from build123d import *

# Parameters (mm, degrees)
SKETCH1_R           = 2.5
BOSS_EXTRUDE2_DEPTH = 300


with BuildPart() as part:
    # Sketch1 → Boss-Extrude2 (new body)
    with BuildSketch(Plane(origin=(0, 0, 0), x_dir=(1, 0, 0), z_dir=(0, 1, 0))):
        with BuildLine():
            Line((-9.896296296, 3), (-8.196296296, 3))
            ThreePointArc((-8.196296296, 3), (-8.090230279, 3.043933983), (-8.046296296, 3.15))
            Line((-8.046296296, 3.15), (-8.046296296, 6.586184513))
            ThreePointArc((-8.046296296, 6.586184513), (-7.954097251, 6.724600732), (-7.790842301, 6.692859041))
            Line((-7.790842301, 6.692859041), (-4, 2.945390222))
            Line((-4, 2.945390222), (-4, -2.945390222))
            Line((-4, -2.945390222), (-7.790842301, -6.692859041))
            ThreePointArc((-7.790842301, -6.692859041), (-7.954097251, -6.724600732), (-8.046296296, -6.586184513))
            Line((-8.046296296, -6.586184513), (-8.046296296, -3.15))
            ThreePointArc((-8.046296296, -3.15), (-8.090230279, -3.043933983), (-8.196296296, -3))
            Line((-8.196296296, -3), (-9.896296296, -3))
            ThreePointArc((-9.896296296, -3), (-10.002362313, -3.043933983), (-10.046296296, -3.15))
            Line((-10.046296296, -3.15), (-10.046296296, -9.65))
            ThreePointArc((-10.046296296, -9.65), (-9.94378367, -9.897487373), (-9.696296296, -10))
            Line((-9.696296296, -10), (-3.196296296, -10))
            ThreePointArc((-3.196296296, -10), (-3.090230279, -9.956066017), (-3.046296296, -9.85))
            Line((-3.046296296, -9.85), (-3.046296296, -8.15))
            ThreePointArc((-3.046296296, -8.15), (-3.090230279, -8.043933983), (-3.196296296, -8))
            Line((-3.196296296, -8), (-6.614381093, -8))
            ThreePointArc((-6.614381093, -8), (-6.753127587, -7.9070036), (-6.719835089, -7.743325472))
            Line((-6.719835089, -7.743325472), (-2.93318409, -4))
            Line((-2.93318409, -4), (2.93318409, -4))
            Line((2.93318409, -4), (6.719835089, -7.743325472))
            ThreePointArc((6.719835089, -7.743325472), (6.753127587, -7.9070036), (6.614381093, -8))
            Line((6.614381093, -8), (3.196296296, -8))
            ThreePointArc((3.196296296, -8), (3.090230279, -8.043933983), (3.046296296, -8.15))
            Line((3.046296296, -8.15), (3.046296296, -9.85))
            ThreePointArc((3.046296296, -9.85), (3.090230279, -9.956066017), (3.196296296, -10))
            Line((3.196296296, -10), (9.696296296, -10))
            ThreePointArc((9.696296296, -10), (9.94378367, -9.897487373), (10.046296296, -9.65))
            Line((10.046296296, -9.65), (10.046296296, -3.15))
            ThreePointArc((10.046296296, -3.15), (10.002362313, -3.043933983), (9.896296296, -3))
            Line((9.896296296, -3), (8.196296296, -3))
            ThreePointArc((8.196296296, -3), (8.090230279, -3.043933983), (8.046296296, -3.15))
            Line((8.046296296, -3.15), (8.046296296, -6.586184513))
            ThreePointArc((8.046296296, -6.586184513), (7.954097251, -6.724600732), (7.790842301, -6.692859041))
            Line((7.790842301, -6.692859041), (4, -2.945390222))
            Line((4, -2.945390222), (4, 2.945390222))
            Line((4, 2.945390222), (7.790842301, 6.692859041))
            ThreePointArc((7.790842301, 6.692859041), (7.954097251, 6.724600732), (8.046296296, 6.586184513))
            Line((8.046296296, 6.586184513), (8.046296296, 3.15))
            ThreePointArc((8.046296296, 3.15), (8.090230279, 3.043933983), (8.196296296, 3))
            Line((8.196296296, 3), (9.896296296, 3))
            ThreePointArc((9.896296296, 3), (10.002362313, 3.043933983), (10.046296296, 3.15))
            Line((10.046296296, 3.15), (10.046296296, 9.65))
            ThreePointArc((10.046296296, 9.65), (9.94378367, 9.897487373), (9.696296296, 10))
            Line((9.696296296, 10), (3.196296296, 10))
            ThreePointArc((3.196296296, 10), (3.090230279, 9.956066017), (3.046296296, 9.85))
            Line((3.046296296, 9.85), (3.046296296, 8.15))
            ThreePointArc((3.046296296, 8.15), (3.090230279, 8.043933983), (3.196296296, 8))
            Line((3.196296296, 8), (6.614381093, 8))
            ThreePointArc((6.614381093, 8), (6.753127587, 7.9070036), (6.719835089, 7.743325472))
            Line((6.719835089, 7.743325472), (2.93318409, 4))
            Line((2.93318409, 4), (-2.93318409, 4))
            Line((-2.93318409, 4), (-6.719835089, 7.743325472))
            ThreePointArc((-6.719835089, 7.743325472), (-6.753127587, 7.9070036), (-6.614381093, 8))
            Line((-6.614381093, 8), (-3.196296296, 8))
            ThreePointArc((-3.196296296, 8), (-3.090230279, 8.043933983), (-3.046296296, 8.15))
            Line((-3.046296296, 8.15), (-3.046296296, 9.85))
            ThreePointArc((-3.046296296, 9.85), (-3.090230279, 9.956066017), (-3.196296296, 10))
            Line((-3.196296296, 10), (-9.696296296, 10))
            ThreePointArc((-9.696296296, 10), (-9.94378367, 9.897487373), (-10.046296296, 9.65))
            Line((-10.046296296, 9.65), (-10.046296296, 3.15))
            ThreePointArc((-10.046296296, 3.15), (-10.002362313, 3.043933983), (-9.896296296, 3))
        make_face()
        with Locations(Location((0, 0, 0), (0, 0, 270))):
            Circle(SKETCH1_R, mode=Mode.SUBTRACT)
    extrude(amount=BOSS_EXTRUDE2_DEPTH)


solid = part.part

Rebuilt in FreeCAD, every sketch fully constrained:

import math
import FreeCAD as App
import Part
import Sketcher

V = App.Vector

doc = App.newDocument("Part")
params = doc.addObject("Spreadsheet::Sheet", "Params")
for row, (alias, value) in enumerate([
    ("sketch1_diameter", "5 mm"),
    ("sketch1_radius", "0.15 mm"),
    ("sketch1_radius2", "0.35 mm"),
    ("sketch1_width", "1.7 mm"),
    ("sketch1_width2", "6.5 mm"),
    ("pad1_length", "300 mm"),
], start=1):
    params.set(f"A{row}", alias)
    params.set(f"B{row}", "=" + value)
    params.setAlias(f"B{row}", alias)

body = doc.addObject("PartDesign::Body", "Body")

sketch1 = doc.addObject("Sketcher::SketchObject", "Sketch")
body.addObject(sketch1)
sketch1.AttachmentSupport = (doc.XZ_Plane, [""])
sketch1.MapMode = "FlatFace"
sketch1.addGeometry([
    Part.LineSegment(V(-9.9, -3, 0), V(-8.2, -3, 0)),
    Part.ArcOfCircle(Part.Circle(V(-8.2, -3.15, 0), V(0, 0, 1), 0.15), math.radians(0), math.radians(90)),
    Part.LineSegment(V(-8.05, -3.15, 0), V(-8.05, -6.59, 0)),
    Part.ArcOfCircle(Part.Circle(V(-7.9, -6.59, 0), V(0, 0, 1), 0.15), math.radians(180), math.radians(315)),
    Part.LineSegment(V(-7.79, -6.69, 0), V(-4, -2.95, 0)),
    Part.LineSegment(V(-4, -2.95, 0), V(-4, 2.95, 0)),
    Part.LineSegment(V(-4, 2.95, 0), V(-7.79, 6.69, 0)),
    Part.ArcOfCircle(Part.Circle(V(-7.9, 6.59, 0), V(0, 0, 1), 0.15), math.radians(45), math.radians(180)),
    Part.LineSegment(V(-8.05, 6.59, 0), V(-8.05, 3.15, 0)),
    Part.ArcOfCircle(Part.Circle(V(-8.2, 3.15, 0), V(0, 0, 1), 0.15), math.radians(-90), math.radians(0)),
    Part.LineSegment(V(-8.2, 3, 0), V(-9.9, 3, 0)),
    Part.ArcOfCircle(Part.Circle(V(-9.9, 3.15, 0), V(0, 0, 1), 0.15), math.radians(-180), math.radians(-90)),
    Part.LineSegment(V(-10.05, 3.15, 0), V(-10.05, 9.65, 0)),
    Part.ArcOfCircle(Part.Circle(V(-9.7, 9.65, 0), V(0, 0, 1), 0.35), math.radians(90), math.radians(180)),
    Part.LineSegment(V(-9.7, 10, 0), V(-3.2, 10, 0)),
    Part.ArcOfCircle(Part.Circle(V(-3.2, 9.85, 0), V(0, 0, 1), 0.15), math.radians(0), math.radians(90)),
    Part.LineSegment(V(-3.05, 9.85, 0), V(-3.05, 8.15, 0)),
    Part.ArcOfCircle(Part.Circle(V(-3.2, 8.15, 0), V(0, 0, 1), 0.15), math.radians(-90), math.radians(0)),
    Part.LineSegment(V(-3.2, 8, 0), V(-6.61, 8, 0)),
    Part.ArcOfCircle(Part.Circle(V(-6.61, 7.85, 0), V(0, 0, 1), 0.15), math.radians(90), math.radians(225)),
    Part.LineSegment(V(-6.72, 7.74, 0), V(-2.93, 4, 0)),
    Part.LineSegment(V(-2.93, 4, 0), V(2.93, 4, 0)),
    Part.LineSegment(V(2.93, 4, 0), V(6.72, 7.74, 0)),
    Part.ArcOfCircle(Part.Circle(V(6.61, 7.85, 0), V(0, 0, 1), 0.15), math.radians(-45), math.radians(90)),
    Part.LineSegment(V(6.61, 8, 0), V(3.2, 8, 0)),
    Part.ArcOfCircle(Part.Circle(V(3.2, 8.15, 0), V(0, 0, 1), 0.15), math.radians(-180), math.radians(-90)),
    Part.LineSegment(V(3.05, 8.15, 0), V(3.05, 9.85, 0)),
    Part.ArcOfCircle(Part.Circle(V(3.2, 9.85, 0), V(0, 0, 1), 0.15), math.radians(90), math.radians(180)),
    Part.LineSegment(V(3.2, 10, 0), V(9.7, 10, 0)),
    Part.ArcOfCircle(Part.Circle(V(9.7, 9.65, 0), V(0, 0, 1), 0.35), math.radians(0), math.radians(90)),
    Part.LineSegment(V(10.05, 9.65, 0), V(10.05, 3.15, 0)),
    Part.ArcOfCircle(Part.Circle(V(9.9, 3.15, 0), V(0, 0, 1), 0.15), math.radians(-90), math.radians(0)),
    Part.LineSegment(V(9.9, 3, 0), V(8.2, 3, 0)),
    Part.ArcOfCircle(Part.Circle(V(8.2, 3.15, 0), V(0, 0, 1), 0.15), math.radians(-180), math.radians(-90)),
    Part.LineSegment(V(8.05, 3.15, 0), V(8.05, 6.59, 0)),
    Part.ArcOfCircle(Part.Circle(V(7.9, 6.59, 0), V(0, 0, 1), 0.15), math.radians(0), math.radians(135)),
    Part.LineSegment(V(7.79, 6.69, 0), V(4, 2.95, 0)),
    Part.LineSegment(V(4, 2.95, 0), V(4, -2.95, 0)),
    Part.LineSegment(V(4, -2.95, 0), V(7.79, -6.69, 0)),
    Part.ArcOfCircle(Part.Circle(V(7.9, -6.59, 0), V(0, 0, 1), 0.15), math.radians(-135), math.radians(0)),
    Part.LineSegment(V(8.05, -6.59, 0), V(8.05, -3.15, 0)),
    Part.ArcOfCircle(Part.Circle(V(8.2, -3.15, 0), V(0, 0, 1), 0.15), math.radians(90), math.radians(180)),
    Part.LineSegment(V(8.2, -3, 0), V(9.9, -3, 0)),
    Part.ArcOfCircle(Part.Circle(V(9.9, -3.15, 0), V(0, 0, 1), 0.15), math.radians(0), math.radians(90)),
    Part.LineSegment(V(10.05, -3.15, 0), V(10.05, -9.65, 0)),
    Part.ArcOfCircle(Part.Circle(V(9.7, -9.65, 0), V(0, 0, 1), 0.35), math.radians(-90), math.radians(0)),
    Part.LineSegment(V(9.7, -10, 0), V(3.2, -10, 0)),
    Part.ArcOfCircle(Part.Circle(V(3.2, -9.85, 0), V(0, 0, 1), 0.15), math.radians(-180), math.radians(-90)),
    Part.LineSegment(V(3.05, -9.85, 0), V(3.05, -8.15, 0)),
    Part.ArcOfCircle(Part.Circle(V(3.2, -8.15, 0), V(0, 0, 1), 0.15), math.radians(90), math.radians(180)),
    Part.LineSegment(V(3.2, -8, 0), V(6.61, -8, 0)),
    Part.ArcOfCircle(Part.Circle(V(6.61, -7.85, 0), V(0, 0, 1), 0.15), math.radians(-90), math.radians(45)),
    Part.LineSegment(V(6.72, -7.74, 0), V(2.93, -4, 0)),
    Part.LineSegment(V(2.93, -4, 0), V(-2.93, -4, 0)),
    Part.LineSegment(V(-2.93, -4, 0), V(-6.72, -7.74, 0)),
    Part.ArcOfCircle(Part.Circle(V(-6.61, -7.85, 0), V(0, 0, 1), 0.15), math.radians(135), math.radians(270)),
    Part.LineSegment(V(-6.61, -8, 0), V(-3.2, -8, 0)),
    Part.ArcOfCircle(Part.Circle(V(-3.2, -8.15, 0), V(0, 0, 1), 0.15), math.radians(0), math.radians(90)),
    Part.LineSegment(V(-3.05, -8.15, 0), V(-3.05, -9.85, 0)),
    Part.ArcOfCircle(Part.Circle(V(-3.2, -9.85, 0), V(0, 0, 1), 0.15), math.radians(-90), math.radians(0)),
    Part.LineSegment(V(-3.2, -10, 0), V(-9.7, -10, 0)),
    Part.ArcOfCircle(Part.Circle(V(-9.7, -9.65, 0), V(0, 0, 1), 0.35), math.radians(180), math.radians(270)),
    Part.LineSegment(V(-10.05, -9.65, 0), V(-10.05, -3.15, 0)),
    Part.ArcOfCircle(Part.Circle(V(-9.9, -3.15, 0), V(0, 0, 1), 0.15), math.radians(90), math.radians(180)),
    Part.Circle(V(0, 0, 0), V(0, 0, 1), 2.5),
], False)
sketch1.addConstraint([
    Sketcher.Constraint("Tangent", 0, 2, 1, 2),
    Sketcher.Constraint("Tangent", 1, 1, 2, 1),
    Sketcher.Constraint("Tangent", 2, 2, 3, 1),
    Sketcher.Constraint("Tangent", 3, 2, 4, 1),
    Sketcher.Constraint("Coincident", 4, 2, 5, 1),
    Sketcher.Constraint("Coincident", 5, 2, 6, 1),
    Sketcher.Constraint("Tangent", 6, 2, 7, 1),
    Sketcher.Constraint("Tangent", 7, 2, 8, 1),
    Sketcher.Constraint("Tangent", 8, 2, 9, 2),
    Sketcher.Constraint("Tangent", 9, 1, 10, 1),
    Sketcher.Constraint("Tangent", 10, 2, 11, 2),
    Sketcher.Constraint("Tangent", 11, 1, 12, 1),
    Sketcher.Constraint("Tangent", 12, 2, 13, 2),
    Sketcher.Constraint("Tangent", 13, 1, 14, 1),
    Sketcher.Constraint("Tangent", 14, 2, 15, 2),
    Sketcher.Constraint("Tangent", 15, 1, 16, 1),
    Sketcher.Constraint("Tangent", 16, 2, 17, 2),
    Sketcher.Constraint("Tangent", 17, 1, 18, 1),
    Sketcher.Constraint("Tangent", 18, 2, 19, 1),
    Sketcher.Constraint("Tangent", 19, 2, 20, 1),
    Sketcher.Constraint("Coincident", 20, 2, 21, 1),
    Sketcher.Constraint("Coincident", 21, 2, 22, 1),
    Sketcher.Constraint("Tangent", 22, 2, 23, 1),
    Sketcher.Constraint("Tangent", 23, 2, 24, 1),
    Sketcher.Constraint("Tangent", 24, 2, 25, 2),
    Sketcher.Constraint("Tangent", 25, 1, 26, 1),
    Sketcher.Constraint("Tangent", 26, 2, 27, 2),
    Sketcher.Constraint("Tangent", 27, 1, 28, 1),
    Sketcher.Constraint("Tangent", 28, 2, 29, 2),
    Sketcher.Constraint("Tangent", 29, 1, 30, 1),
    Sketcher.Constraint("Tangent", 30, 2, 31, 2),
    Sketcher.Constraint("Tangent", 31, 1, 32, 1),
    Sketcher.Constraint("Tangent", 32, 2, 33, 2),
    Sketcher.Constraint("Tangent", 33, 1, 34, 1),
    Sketcher.Constraint("Tangent", 34, 2, 35, 1),
    Sketcher.Constraint("Tangent", 35, 2, 36, 1),
    Sketcher.Constraint("Coincident", 36, 2, 37, 1),
    Sketcher.Constraint("Coincident", 37, 2, 38, 1),
    Sketcher.Constraint("Tangent", 38, 2, 39, 1),
    Sketcher.Constraint("Tangent", 39, 2, 40, 1),
    Sketcher.Constraint("Tangent", 40, 2, 41, 2),
    Sketcher.Constraint("Tangent", 41, 1, 42, 1),
    Sketcher.Constraint("Tangent", 42, 2, 43, 2),
    Sketcher.Constraint("Tangent", 43, 1, 44, 1),
    Sketcher.Constraint("Tangent", 44, 2, 45, 2),
    Sketcher.Constraint("Tangent", 45, 1, 46, 1),
    Sketcher.Constraint("Tangent", 46, 2, 47, 2),
    Sketcher.Constraint("Tangent", 47, 1, 48, 1),
    Sketcher.Constraint("Tangent", 48, 2, 49, 2),
    Sketcher.Constraint("Tangent", 49, 1, 50, 1),
    Sketcher.Constraint("Tangent", 50, 2, 51, 1),
    Sketcher.Constraint("Tangent", 51, 2, 52, 1),
    Sketcher.Constraint("Coincident", 52, 2, 53, 1),
    Sketcher.Constraint("Coincident", 53, 2, 54, 1),
    Sketcher.Constraint("Tangent", 54, 2, 55, 1),
    Sketcher.Constraint("Tangent", 55, 2, 56, 1),
    Sketcher.Constraint("Tangent", 56, 2, 57, 2),
    Sketcher.Constraint("Tangent", 57, 1, 58, 1),
    Sketcher.Constraint("Tangent", 58, 2, 59, 2),
    Sketcher.Constraint("Tangent", 59, 1, 60, 1),
    Sketcher.Constraint("Tangent", 60, 2, 61, 2),
    Sketcher.Constraint("Tangent", 61, 1, 62, 1),
    Sketcher.Constraint("Tangent", 62, 2, 63, 2),
    Sketcher.Constraint("Tangent", 63, 1, 0, 1),
    Sketcher.Constraint("Horizontal", 0),
    Sketcher.Constraint("Vertical", 2),
    Sketcher.Constraint("Vertical", 5),
    Sketcher.Constraint("Vertical", 8),
    Sketcher.Constraint("Horizontal", 10),
    Sketcher.Constraint("Vertical", 12),
    Sketcher.Constraint("Horizontal", 14),
    Sketcher.Constraint("Vertical", 16),
    Sketcher.Constraint("Horizontal", 18),
    Sketcher.Constraint("Horizontal", 21),
    Sketcher.Constraint("Horizontal", 24),
    Sketcher.Constraint("Vertical", 26),
    Sketcher.Constraint("Horizontal", 28),
    Sketcher.Constraint("Vertical", 30),
    Sketcher.Constraint("Horizontal", 32),
    Sketcher.Constraint("Vertical", 34),
    Sketcher.Constraint("Vertical", 37),
    Sketcher.Constraint("Vertical", 40),
    Sketcher.Constraint("Horizontal", 42),
    Sketcher.Constraint("Vertical", 44),
    Sketcher.Constraint("Horizontal", 46),
    Sketcher.Constraint("Vertical", 48),
    Sketcher.Constraint("Horizontal", 50),
    Sketcher.Constraint("Horizontal", 53),
    Sketcher.Constraint("Horizontal", 56),
    Sketcher.Constraint("Vertical", 58),
    Sketcher.Constraint("Horizontal", 60),
    Sketcher.Constraint("Vertical", 62),
    Sketcher.Constraint("Coincident", 64, 3, -1, 1),
    Sketcher.Constraint("Equal", 1, 3),
    Sketcher.Constraint("Equal", 3, 7),
    Sketcher.Constraint("Equal", 7, 9),
    Sketcher.Constraint("Equal", 9, 11),
    Sketcher.Constraint("Equal", 11, 15),
    Sketcher.Constraint("Equal", 15, 17),
    Sketcher.Constraint("Equal", 17, 19),
    Sketcher.Constraint("Equal", 19, 23),
    Sketcher.Constraint("Equal", 23, 25),
    Sketcher.Constraint("Equal", 25, 27),
    Sketcher.Constraint("Equal", 13, 29),
    Sketcher.Constraint("Equal", 27, 31),
    Sketcher.Constraint("Equal", 31, 33),
    Sketcher.Constraint("Equal", 33, 35),
    Sketcher.Constraint("Equal", 35, 39),
    Sketcher.Constraint("Equal", 39, 41),
    Sketcher.Constraint("Equal", 41, 43),
    Sketcher.Constraint("Equal", 29, 45),
    Sketcher.Constraint("Equal", 43, 47),
    Sketcher.Constraint("Equal", 47, 49),
    Sketcher.Constraint("Equal", 49, 51),
    Sketcher.Constraint("Equal", 51, 55),
    Sketcher.Constraint("Equal", 55, 57),
    Sketcher.Constraint("Equal", 57, 59),
    Sketcher.Constraint("Equal", 45, 61),
    Sketcher.Constraint("Equal", 59, 63),
    Sketcher.Constraint("Symmetric", 1, 3, 33, 3, -1, 1),
    Sketcher.Constraint("Symmetric", 7, 3, 39, 3, -1, 1),
    Sketcher.Constraint("Symmetric", 11, 3, 43, 3, -1, 1),
    Sketcher.Constraint("Symmetric", 15, 3, 47, 3, -1, 1),
    Sketcher.Constraint("Symmetric", 19, 3, 51, 3, -1, 1),
    Sketcher.Constraint("Symmetric", 23, 3, 55, 3, -1, 1),
    Sketcher.Constraint("Symmetric", 27, 3, 59, 3, -1, 1),
    Sketcher.Constraint("Symmetric", 3, 2, 35, 2, -1, 1),
    Sketcher.Constraint("Symmetric", 5, 2, 37, 2, -1, 1),
    Sketcher.Constraint("Symmetric", 20, 2, 52, 2, -1, 1),
    Sketcher.Constraint("Symmetric", 19, 3, 23, 3, -2),
    Sketcher.Constraint("Symmetric", 15, 3, 27, 3, -2),
    Sketcher.Constraint("Symmetric", 11, 3, 31, 3, -2),
    Sketcher.Constraint("Symmetric", 7, 3, 35, 3, -2),
    Sketcher.Constraint("Parallel", 6, 20),
    Sketcher.Constraint("Parallel", 4, 22),
    Sketcher.Constraint("Parallel", 36, 54),
    Sketcher.Constraint("Horizontal", 19, 2, 22, 2),
    Sketcher.Constraint("Vertical", 13, 3, 61, 3),
    Sketcher.Constraint("Equal", 60, 12),
    Sketcher.Constraint("Equal", 42, 16),
    Sketcher.Constraint("Diameter", 64, 5.0),
    Sketcher.Constraint("Radius", 1, 0.15),
    Sketcher.Constraint("Radius", 13, 0.35),
    Sketcher.Constraint("DistanceX", 0, 1, 0, 2, 1.7),
    Sketcher.Constraint("DistanceX", 14, 1, 14, 2, 6.5),
    Sketcher.Constraint("DistanceY", 0, 2, -1, 1, 3.0),
    Sketcher.Constraint("DistanceX", 4, 2, -1, 1, 4.0),
    Sketcher.Constraint("DistanceY", -1, 1, 20, 2, 4.0),
    Sketcher.Constraint("DistanceX", 21, 1, 21, 2, 5.866368),
    Sketcher.Constraint("DistanceY", 5, 1, 5, 2, 5.89078),
    Sketcher.Constraint("Distance", 4, 5.330479),
    Sketcher.Constraint("DistanceX", 18, 2, 18, 1, 3.418085),
])
sketch1.setExpression("Constraints[140]", "Params.sketch1_diameter")
sketch1.setExpression("Constraints[141]", "Params.sketch1_radius")
sketch1.setExpression("Constraints[142]", "Params.sketch1_radius2")
sketch1.setExpression("Constraints[143]", "Params.sketch1_width")
sketch1.setExpression("Constraints[144]", "Params.sketch1_width2")
pad1 = doc.addObject("PartDesign::Pad", "Pad")
body.addObject(pad1)
pad1.Profile = sketch1
pad1.setExpression("Length", "Params.pad1_length")
pad1.Reversed = True

doc.recompute()
